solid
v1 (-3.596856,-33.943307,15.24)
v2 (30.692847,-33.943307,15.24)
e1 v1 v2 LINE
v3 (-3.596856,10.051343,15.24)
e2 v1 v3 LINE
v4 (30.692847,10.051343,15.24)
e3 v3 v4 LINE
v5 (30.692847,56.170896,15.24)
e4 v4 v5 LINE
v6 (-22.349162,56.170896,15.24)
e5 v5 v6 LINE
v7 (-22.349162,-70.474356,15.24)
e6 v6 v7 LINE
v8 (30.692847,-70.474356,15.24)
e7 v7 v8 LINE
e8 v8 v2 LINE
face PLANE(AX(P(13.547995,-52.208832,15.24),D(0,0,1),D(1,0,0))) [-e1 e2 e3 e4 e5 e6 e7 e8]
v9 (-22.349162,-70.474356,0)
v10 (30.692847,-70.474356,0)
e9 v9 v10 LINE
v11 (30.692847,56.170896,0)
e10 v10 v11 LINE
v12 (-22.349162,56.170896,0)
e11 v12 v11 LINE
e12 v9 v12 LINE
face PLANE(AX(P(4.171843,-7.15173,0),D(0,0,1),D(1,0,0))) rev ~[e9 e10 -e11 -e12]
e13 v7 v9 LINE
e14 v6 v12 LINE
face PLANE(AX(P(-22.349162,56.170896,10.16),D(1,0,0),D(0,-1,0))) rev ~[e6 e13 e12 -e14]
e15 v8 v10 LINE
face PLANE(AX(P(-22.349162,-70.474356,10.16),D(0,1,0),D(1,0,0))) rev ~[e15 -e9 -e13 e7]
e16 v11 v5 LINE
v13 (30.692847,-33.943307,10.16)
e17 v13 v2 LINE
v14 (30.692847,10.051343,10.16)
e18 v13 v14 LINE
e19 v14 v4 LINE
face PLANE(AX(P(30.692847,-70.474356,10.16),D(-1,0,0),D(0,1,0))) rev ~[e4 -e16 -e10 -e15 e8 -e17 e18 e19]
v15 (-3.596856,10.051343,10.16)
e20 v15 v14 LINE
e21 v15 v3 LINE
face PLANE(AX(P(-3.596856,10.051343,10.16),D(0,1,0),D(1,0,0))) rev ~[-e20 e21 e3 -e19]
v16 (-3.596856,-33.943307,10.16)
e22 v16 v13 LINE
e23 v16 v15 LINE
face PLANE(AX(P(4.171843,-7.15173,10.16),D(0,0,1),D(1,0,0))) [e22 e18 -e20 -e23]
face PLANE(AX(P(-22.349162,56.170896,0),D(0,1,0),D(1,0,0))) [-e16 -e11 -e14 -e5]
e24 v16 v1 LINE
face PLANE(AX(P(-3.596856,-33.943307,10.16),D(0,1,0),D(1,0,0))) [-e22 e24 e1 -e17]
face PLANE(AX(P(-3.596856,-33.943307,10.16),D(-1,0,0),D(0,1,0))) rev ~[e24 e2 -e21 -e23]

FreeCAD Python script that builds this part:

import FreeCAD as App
import Part
import Sketcher
Q = App.Units.Quantity


def add_polygon(sketch, points):
    """Adds a closed chain of lines whose ends are joined by coincident constraints."""
    first, n = sketch.GeometryCount, len(points)
    for a, b in zip(points, points[1:] + points[:1]):
        sketch.addGeometry(Part.LineSegment(App.Vector(*a, 0), App.Vector(*b, 0)), False)
    for i in range(n):
        sketch.addConstraint(Sketcher.Constraint("Coincident", first + i, 2, first + (i + 1) % n, 1))

doc = App.newDocument("Part")
params = doc.addObject("Spreadsheet::Sheet", "Params")
for row, (alias, value) in enumerate([
    ("pad1_length", "0.4 in"),
    ("pad2_length", "0.2 in"),
], start=1):
    params.set(f"A{row}", alias)
    params.set(f"B{row}", "=" + value)
    params.setAlias(f"B{row}", alias)

body = doc.addObject("PartDesign::Body", "Body")

# Sketch on XY plane
sketch1 = doc.addObject("Sketcher::SketchObject", "Sketch")
body.addObject(sketch1)
sketch1.AttachmentSupport = (doc.XY_Plane, [""])
sketch1.MapMode = "FlatFace"
add_polygon(sketch1, [(-22, 56), (-22, -70), (31, -70), (31, 56)])  # lines 0-3
sketch1.addConstraint([
    Sketcher.Constraint("Vertical", 0),
    Sketcher.Constraint("Horizontal", 1),
    Sketcher.Constraint("Vertical", 2),
    Sketcher.Constraint("Horizontal", 3),
    Sketcher.Constraint("DistanceX", 1, 1, 1, 2, Q("53.042009 mm")),
    Sketcher.Constraint("DistanceY", 0, 2, 0, 1, Q("126.645252 mm")),
    Sketcher.Constraint("DistanceX", 0, 2, -1, 1, Q("22.349162 mm")),
    Sketcher.Constraint("DistanceY", 0, 2, -1, 1, Q("70.474356 mm")),
])
pad1 = doc.addObject("PartDesign::Pad", "Pad")
body.addObject(pad1)
pad1.Profile = sketch1
pad1.setExpression("Length", "Params.pad1_length")

# Sketch on XY plane
sketch2 = doc.addObject("Sketcher::SketchObject", "Sketch001")
body.addObject(sketch2)
sketch2.AttachmentSupport = (doc.XY_Plane, [""])
sketch2.MapMode = "FlatFace"
sketch2.AttachmentOffset = App.Placement(App.Vector(0, 0, 0.4 * 25.4), App.Rotation())
add_polygon(sketch2, [(31, -70), (31, -34), (-4, -34), (-4, 10), (31, 10), (31, 56), (-22, 56), (-22, -70)])  # lines 0-7
sketch2.addConstraint([
    Sketcher.Constraint("Vertical", 0),
    Sketcher.Constraint("Horizontal", 1),
    Sketcher.Constraint("Vertical", 2),
    Sketcher.Constraint("Horizontal", 3),
    Sketcher.Constraint("Vertical", 4),
    Sketcher.Constraint("Horizontal", 5),
    Sketcher.Constraint("Vertical", 6),
    Sketcher.Constraint("Horizontal", 7),
    Sketcher.Constraint("Vertical", 0, 2, 3, 2),
    Sketcher.Constraint("DistanceX", 5, 2, 5, 1, Q("53.042009 mm")),
    Sketcher.Constraint("DistanceY", 0, 1, 0, 2, Q("36.53105 mm")),
    Sketcher.Constraint("DistanceY", 2, 1, 2, 2, Q("43.994649 mm")),
    Sketcher.Constraint("DistanceX", 1, 2, 1, 1, Q("34.289704 mm")),
    Sketcher.Constraint("DistanceY", 4, 1, 4, 2, Q("46.119553 mm")),
    Sketcher.Constraint("DistanceX", -1, 1, 0, 2, Q("30.692847 mm")),
    Sketcher.Constraint("DistanceY", 0, 2, -1, 1, Q("33.943307 mm")),
])
pad2 = doc.addObject("PartDesign::Pad", "Pad001")
body.addObject(pad2)
pad2.Profile = sketch2
pad2.setExpression("Length", "Params.pad2_length")

doc.recompute()
